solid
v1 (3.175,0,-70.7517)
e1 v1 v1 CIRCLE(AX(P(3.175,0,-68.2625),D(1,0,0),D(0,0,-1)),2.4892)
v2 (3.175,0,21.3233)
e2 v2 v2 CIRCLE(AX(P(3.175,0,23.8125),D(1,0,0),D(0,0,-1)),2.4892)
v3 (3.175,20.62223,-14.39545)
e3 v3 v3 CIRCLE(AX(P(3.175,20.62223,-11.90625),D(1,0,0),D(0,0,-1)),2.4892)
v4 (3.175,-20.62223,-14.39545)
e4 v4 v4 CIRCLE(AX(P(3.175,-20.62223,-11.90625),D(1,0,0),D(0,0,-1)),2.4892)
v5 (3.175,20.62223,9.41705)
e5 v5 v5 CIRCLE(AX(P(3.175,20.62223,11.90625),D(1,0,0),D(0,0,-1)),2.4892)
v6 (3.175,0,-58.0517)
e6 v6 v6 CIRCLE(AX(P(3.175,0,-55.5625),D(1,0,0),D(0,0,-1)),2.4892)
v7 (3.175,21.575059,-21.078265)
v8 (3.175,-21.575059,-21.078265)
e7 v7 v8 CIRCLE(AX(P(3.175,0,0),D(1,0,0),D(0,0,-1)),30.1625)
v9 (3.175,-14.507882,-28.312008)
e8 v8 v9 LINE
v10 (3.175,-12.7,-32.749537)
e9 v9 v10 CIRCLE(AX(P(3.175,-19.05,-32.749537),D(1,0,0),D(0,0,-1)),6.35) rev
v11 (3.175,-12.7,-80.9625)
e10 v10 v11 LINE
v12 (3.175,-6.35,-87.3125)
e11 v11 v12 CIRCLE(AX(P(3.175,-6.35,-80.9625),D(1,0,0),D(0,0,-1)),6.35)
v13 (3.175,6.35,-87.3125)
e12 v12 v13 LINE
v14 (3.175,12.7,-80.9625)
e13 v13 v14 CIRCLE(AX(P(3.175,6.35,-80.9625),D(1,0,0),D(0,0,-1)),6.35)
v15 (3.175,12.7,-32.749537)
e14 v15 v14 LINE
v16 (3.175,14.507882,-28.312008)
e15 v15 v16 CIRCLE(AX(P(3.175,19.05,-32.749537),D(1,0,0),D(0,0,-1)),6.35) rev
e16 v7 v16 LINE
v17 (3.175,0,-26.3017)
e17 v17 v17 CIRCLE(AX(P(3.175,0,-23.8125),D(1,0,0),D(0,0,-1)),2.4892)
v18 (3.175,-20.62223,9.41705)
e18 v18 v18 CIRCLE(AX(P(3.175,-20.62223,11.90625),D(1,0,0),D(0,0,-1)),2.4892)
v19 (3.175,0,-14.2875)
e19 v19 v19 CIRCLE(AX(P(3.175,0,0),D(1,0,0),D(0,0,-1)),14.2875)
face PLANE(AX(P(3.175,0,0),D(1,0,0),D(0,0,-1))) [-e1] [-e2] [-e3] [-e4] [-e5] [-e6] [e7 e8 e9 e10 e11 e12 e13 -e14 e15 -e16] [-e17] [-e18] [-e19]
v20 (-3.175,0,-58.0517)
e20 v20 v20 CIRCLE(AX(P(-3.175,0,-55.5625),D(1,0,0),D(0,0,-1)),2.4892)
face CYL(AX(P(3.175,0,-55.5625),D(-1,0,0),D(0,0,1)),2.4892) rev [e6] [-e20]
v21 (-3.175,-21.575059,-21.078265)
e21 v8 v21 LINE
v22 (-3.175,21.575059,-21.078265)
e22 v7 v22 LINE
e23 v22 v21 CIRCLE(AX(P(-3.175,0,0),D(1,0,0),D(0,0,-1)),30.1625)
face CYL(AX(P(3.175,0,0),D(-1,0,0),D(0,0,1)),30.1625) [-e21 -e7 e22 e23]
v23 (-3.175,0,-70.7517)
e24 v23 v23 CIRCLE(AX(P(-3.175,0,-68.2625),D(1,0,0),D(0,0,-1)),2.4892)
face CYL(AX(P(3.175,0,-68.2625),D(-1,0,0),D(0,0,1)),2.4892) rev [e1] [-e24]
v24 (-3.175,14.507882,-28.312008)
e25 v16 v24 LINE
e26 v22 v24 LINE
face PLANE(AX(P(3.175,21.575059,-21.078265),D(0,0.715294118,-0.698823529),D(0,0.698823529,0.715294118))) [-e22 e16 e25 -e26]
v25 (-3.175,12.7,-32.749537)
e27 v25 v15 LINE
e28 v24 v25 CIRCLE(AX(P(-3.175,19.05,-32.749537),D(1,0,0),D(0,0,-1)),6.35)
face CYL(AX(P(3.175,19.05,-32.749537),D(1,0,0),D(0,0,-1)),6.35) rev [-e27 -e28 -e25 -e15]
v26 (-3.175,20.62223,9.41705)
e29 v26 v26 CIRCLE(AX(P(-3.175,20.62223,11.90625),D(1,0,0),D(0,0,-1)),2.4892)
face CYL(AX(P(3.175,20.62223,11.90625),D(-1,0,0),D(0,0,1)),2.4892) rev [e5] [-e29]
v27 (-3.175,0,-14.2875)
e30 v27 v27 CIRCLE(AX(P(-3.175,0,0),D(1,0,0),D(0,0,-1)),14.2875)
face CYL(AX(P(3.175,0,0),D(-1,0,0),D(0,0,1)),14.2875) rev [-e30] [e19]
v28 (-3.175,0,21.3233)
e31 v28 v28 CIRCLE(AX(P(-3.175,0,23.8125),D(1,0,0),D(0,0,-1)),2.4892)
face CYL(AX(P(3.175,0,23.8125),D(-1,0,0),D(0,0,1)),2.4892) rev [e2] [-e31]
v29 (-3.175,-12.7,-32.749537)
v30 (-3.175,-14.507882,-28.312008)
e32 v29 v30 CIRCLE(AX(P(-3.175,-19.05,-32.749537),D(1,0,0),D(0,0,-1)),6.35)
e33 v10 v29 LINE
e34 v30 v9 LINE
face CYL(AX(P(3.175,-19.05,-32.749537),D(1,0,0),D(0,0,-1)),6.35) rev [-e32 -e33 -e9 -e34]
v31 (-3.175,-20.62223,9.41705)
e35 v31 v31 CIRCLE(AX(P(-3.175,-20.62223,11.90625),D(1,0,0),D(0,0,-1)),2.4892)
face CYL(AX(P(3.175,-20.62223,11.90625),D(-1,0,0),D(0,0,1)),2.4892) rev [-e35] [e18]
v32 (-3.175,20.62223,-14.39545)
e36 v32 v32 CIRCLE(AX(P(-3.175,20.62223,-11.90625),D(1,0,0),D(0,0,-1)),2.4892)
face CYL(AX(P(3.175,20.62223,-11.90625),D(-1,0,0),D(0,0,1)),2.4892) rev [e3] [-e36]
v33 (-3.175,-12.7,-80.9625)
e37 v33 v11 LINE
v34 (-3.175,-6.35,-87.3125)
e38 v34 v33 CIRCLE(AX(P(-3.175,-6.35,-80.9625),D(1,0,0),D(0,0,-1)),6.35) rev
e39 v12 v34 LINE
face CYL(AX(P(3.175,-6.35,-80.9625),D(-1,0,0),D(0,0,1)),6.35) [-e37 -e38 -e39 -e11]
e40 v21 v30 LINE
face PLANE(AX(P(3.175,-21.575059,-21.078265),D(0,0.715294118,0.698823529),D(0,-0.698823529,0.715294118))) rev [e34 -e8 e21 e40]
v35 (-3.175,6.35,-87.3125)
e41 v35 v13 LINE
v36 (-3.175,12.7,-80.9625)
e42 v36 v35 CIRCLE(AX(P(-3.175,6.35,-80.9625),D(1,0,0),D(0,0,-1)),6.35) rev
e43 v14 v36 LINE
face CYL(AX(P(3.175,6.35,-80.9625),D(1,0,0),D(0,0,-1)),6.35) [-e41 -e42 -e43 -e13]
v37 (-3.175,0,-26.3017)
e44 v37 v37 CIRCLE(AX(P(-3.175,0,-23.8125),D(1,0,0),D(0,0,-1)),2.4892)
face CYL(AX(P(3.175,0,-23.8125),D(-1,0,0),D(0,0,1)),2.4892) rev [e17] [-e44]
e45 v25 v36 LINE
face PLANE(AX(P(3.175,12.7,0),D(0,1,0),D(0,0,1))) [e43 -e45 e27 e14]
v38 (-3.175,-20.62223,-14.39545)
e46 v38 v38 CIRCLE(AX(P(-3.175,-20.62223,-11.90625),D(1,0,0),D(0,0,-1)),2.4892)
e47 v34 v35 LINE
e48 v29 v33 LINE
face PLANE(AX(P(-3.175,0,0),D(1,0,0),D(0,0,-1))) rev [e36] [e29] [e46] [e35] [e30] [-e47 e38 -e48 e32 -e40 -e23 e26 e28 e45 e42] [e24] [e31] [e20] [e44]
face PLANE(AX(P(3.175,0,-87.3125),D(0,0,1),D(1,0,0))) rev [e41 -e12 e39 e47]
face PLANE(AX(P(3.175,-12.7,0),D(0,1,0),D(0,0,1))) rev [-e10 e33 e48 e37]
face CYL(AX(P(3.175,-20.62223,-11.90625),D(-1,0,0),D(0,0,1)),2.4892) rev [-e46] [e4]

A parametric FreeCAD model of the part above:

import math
import FreeCAD as App
import Part
import Sketcher

V = App.Vector
Q = App.Units.Quantity


def edges_at(feature, points):
    """Names of the edges that pass closest to the given points."""
    edges = feature.Shape.Edges
    near = lambda p: min(range(len(edges)), key=lambda i: edges[i].distToShape(Part.Vertex(*p))[0])
    return sorted({f"Edge{near(p) + 1}" for p in points})

doc = App.newDocument("Part")
body = doc.addObject("PartDesign::Body", "Body")

# Sketch on YZ plane
sketch1 = body.newObject("Sketcher::SketchObject", "Sketch")
sketch1.AttachmentSupport = (doc.getObject("YZ_Plane"), [""])
sketch1.MapMode = "FlatFace"
sketch1.addGeometry(Part.LineSegment(V(-21.6, -21.1, 0), V(-12.7, -30.2, 0)), False)
sketch1.addGeometry(Part.LineSegment(V(-12.7, -30.2, 0), V(-12.7, -87.3, 0)), False)
sketch1.addGeometry(Part.LineSegment(V(-12.7, -87.3, 0), V(12.7, -87.3, 0)), False)
sketch1.addGeometry(Part.LineSegment(V(12.7, -87.3, 0), V(12.7, -30.2, 0)), False)
sketch1.addGeometry(Part.LineSegment(V(12.7, -30.2, 0), V(21.6, -21.1, 0)), False)
sketch1.addGeometry(Part.ArcOfCircle(Part.Circle(V(0, 0, 0), V(0, 0, 1), 30.2), math.radians(-44), math.radians(224)), False)
sketch1.addGeometry(Part.Circle(V(-20.6, 11.9, 0), V(0, 0, 1), 2.5), False)
sketch1.addGeometry(Part.Circle(V(-20.6, -11.9, 0), V(0, 0, 1), 2.5), False)
sketch1.addGeometry(Part.Circle(V(0, 23.8, 0), V(0, 0, 1), 2.5), False)
sketch1.addGeometry(Part.Circle(V(0, 0, 0), V(0, 0, 1), 14.3), False)
sketch1.addGeometry(Part.Circle(V(20.6, 11.9, 0), V(0, 0, 1), 2.5), False)
sketch1.addGeometry(Part.Circle(V(20.6, -11.9, 0), V(0, 0, 1), 2.5), False)
sketch1.addGeometry(Part.Circle(V(0, -23.8, 0), V(0, 0, 1), 2.5), False)
sketch1.addGeometry(Part.Circle(V(0, -55.6, 0), V(0, 0, 1), 2.5), False)
sketch1.addGeometry(Part.Circle(V(0, -68.3, 0), V(0, 0, 1), 2.5), False)
sketch1.addConstraint(Sketcher.Constraint("Coincident", 0, 2, 1, 1))
sketch1.addConstraint(Sketcher.Constraint("Coincident", 1, 2, 2, 1))
sketch1.addConstraint(Sketcher.Constraint("Coincident", 2, 2, 3, 1))
sketch1.addConstraint(Sketcher.Constraint("Coincident", 3, 2, 4, 1))
sketch1.addConstraint(Sketcher.Constraint("Tangent", 4, 2, 5, 1))
sketch1.addConstraint(Sketcher.Constraint("Tangent", 5, 2, 0, 1))
sketch1.addConstraint(Sketcher.Constraint("Vertical", 1))
sketch1.addConstraint(Sketcher.Constraint("Horizontal", 2))
sketch1.addConstraint(Sketcher.Constraint("Vertical", 3))
sketch1.addConstraint(Sketcher.Constraint("Coincident", 5, 3, -1, 1))
sketch1.addConstraint(Sketcher.Constraint("Coincident", 9, 3, -1, 1))
sketch1.addConstraint(Sketcher.Constraint("Equal", 6, 7))
sketch1.addConstraint(Sketcher.Constraint("Equal", 7, 8))
sketch1.addConstraint(Sketcher.Constraint("Equal", 8, 10))
sketch1.addConstraint(Sketcher.Constraint("Equal", 10, 11))
sketch1.addConstraint(Sketcher.Constraint("Equal", 11, 12))
sketch1.addConstraint(Sketcher.Constraint("Equal", 12, 13))
sketch1.addConstraint(Sketcher.Constraint("Equal", 13, 14))
sketch1.addConstraint(Sketcher.Constraint("Symmetric", 7, 3, 10, 3, -1, 1))
sketch1.addConstraint(Sketcher.Constraint("Symmetric", 6, 3, 11, 3, -1, 1))
sketch1.addConstraint(Sketcher.Constraint("Symmetric", 8, 3, 12, 3, -1, 1))
sketch1.addConstraint(Sketcher.Constraint("Symmetric", 6, 3, 10, 3, -2))
sketch1.addConstraint(Sketcher.Constraint("Symmetric", 0, 2, 3, 2, -2))
sketch1.addConstraint(Sketcher.Constraint("PointOnObject", 8, 3, -2))
sketch1.addConstraint(Sketcher.Constraint("PointOnObject", 13, 3, -2))
sketch1.addConstraint(Sketcher.Constraint("PointOnObject", 14, 3, -2))
sketch1.addConstraint(Sketcher.Constraint("DistanceX", 2, 1, 2, 2, Q("1 in")))
sketch1.addConstraint(Sketcher.Constraint("Diameter", 6, Q("0.196 in")))
sketch1.addConstraint(Sketcher.Constraint("Diameter", 9, Q("1.125 in")))
sketch1.addConstraint(Sketcher.Constraint("Radius", 5, Q("1.1875 in")))
sketch1.addConstraint(Sketcher.Constraint("DistanceY", 13, 3, 0, 2, Q("1 in")))
sketch1.addConstraint(Sketcher.Constraint("Distance", 0, Q("0.5 in")))
sketch1.addConstraint(Sketcher.Constraint("DistanceY", 1, 2, 1, 1, Q("2.25 in")))
sketch1.addConstraint(Sketcher.Constraint("DistanceY", 14, 3, 13, 3, Q("0.5 in")))
sketch1.addConstraint(Sketcher.Constraint("DistanceY", 1, 2, 12, 3, Q("2.5 in")))
sketch1.addConstraint(Sketcher.Constraint("DistanceY", -1, 1, 6, 3, Q("0.46875 in")))
sketch1.addConstraint(Sketcher.Constraint("DistanceX", 6, 3, -1, 1, 20.62223))
pad1 = body.newObject("PartDesign::Pad", "Pad")
pad1.Profile = sketch1
pad1.Length = Q("0.25 in")
pad1.Midplane = True
doc.recompute()

fillet = body.newObject("PartDesign::Fillet", "Fillet")
fillet.Base = (pad1, edges_at(pad1, [
    (0, 12.7, -30.163),
    (0, 12.7, -87.312),
    (0, -12.7, -87.312),
    (0, -12.7, -30.163),
]))
fillet.Radius = Q("0.25 in")

doc.recompute()
